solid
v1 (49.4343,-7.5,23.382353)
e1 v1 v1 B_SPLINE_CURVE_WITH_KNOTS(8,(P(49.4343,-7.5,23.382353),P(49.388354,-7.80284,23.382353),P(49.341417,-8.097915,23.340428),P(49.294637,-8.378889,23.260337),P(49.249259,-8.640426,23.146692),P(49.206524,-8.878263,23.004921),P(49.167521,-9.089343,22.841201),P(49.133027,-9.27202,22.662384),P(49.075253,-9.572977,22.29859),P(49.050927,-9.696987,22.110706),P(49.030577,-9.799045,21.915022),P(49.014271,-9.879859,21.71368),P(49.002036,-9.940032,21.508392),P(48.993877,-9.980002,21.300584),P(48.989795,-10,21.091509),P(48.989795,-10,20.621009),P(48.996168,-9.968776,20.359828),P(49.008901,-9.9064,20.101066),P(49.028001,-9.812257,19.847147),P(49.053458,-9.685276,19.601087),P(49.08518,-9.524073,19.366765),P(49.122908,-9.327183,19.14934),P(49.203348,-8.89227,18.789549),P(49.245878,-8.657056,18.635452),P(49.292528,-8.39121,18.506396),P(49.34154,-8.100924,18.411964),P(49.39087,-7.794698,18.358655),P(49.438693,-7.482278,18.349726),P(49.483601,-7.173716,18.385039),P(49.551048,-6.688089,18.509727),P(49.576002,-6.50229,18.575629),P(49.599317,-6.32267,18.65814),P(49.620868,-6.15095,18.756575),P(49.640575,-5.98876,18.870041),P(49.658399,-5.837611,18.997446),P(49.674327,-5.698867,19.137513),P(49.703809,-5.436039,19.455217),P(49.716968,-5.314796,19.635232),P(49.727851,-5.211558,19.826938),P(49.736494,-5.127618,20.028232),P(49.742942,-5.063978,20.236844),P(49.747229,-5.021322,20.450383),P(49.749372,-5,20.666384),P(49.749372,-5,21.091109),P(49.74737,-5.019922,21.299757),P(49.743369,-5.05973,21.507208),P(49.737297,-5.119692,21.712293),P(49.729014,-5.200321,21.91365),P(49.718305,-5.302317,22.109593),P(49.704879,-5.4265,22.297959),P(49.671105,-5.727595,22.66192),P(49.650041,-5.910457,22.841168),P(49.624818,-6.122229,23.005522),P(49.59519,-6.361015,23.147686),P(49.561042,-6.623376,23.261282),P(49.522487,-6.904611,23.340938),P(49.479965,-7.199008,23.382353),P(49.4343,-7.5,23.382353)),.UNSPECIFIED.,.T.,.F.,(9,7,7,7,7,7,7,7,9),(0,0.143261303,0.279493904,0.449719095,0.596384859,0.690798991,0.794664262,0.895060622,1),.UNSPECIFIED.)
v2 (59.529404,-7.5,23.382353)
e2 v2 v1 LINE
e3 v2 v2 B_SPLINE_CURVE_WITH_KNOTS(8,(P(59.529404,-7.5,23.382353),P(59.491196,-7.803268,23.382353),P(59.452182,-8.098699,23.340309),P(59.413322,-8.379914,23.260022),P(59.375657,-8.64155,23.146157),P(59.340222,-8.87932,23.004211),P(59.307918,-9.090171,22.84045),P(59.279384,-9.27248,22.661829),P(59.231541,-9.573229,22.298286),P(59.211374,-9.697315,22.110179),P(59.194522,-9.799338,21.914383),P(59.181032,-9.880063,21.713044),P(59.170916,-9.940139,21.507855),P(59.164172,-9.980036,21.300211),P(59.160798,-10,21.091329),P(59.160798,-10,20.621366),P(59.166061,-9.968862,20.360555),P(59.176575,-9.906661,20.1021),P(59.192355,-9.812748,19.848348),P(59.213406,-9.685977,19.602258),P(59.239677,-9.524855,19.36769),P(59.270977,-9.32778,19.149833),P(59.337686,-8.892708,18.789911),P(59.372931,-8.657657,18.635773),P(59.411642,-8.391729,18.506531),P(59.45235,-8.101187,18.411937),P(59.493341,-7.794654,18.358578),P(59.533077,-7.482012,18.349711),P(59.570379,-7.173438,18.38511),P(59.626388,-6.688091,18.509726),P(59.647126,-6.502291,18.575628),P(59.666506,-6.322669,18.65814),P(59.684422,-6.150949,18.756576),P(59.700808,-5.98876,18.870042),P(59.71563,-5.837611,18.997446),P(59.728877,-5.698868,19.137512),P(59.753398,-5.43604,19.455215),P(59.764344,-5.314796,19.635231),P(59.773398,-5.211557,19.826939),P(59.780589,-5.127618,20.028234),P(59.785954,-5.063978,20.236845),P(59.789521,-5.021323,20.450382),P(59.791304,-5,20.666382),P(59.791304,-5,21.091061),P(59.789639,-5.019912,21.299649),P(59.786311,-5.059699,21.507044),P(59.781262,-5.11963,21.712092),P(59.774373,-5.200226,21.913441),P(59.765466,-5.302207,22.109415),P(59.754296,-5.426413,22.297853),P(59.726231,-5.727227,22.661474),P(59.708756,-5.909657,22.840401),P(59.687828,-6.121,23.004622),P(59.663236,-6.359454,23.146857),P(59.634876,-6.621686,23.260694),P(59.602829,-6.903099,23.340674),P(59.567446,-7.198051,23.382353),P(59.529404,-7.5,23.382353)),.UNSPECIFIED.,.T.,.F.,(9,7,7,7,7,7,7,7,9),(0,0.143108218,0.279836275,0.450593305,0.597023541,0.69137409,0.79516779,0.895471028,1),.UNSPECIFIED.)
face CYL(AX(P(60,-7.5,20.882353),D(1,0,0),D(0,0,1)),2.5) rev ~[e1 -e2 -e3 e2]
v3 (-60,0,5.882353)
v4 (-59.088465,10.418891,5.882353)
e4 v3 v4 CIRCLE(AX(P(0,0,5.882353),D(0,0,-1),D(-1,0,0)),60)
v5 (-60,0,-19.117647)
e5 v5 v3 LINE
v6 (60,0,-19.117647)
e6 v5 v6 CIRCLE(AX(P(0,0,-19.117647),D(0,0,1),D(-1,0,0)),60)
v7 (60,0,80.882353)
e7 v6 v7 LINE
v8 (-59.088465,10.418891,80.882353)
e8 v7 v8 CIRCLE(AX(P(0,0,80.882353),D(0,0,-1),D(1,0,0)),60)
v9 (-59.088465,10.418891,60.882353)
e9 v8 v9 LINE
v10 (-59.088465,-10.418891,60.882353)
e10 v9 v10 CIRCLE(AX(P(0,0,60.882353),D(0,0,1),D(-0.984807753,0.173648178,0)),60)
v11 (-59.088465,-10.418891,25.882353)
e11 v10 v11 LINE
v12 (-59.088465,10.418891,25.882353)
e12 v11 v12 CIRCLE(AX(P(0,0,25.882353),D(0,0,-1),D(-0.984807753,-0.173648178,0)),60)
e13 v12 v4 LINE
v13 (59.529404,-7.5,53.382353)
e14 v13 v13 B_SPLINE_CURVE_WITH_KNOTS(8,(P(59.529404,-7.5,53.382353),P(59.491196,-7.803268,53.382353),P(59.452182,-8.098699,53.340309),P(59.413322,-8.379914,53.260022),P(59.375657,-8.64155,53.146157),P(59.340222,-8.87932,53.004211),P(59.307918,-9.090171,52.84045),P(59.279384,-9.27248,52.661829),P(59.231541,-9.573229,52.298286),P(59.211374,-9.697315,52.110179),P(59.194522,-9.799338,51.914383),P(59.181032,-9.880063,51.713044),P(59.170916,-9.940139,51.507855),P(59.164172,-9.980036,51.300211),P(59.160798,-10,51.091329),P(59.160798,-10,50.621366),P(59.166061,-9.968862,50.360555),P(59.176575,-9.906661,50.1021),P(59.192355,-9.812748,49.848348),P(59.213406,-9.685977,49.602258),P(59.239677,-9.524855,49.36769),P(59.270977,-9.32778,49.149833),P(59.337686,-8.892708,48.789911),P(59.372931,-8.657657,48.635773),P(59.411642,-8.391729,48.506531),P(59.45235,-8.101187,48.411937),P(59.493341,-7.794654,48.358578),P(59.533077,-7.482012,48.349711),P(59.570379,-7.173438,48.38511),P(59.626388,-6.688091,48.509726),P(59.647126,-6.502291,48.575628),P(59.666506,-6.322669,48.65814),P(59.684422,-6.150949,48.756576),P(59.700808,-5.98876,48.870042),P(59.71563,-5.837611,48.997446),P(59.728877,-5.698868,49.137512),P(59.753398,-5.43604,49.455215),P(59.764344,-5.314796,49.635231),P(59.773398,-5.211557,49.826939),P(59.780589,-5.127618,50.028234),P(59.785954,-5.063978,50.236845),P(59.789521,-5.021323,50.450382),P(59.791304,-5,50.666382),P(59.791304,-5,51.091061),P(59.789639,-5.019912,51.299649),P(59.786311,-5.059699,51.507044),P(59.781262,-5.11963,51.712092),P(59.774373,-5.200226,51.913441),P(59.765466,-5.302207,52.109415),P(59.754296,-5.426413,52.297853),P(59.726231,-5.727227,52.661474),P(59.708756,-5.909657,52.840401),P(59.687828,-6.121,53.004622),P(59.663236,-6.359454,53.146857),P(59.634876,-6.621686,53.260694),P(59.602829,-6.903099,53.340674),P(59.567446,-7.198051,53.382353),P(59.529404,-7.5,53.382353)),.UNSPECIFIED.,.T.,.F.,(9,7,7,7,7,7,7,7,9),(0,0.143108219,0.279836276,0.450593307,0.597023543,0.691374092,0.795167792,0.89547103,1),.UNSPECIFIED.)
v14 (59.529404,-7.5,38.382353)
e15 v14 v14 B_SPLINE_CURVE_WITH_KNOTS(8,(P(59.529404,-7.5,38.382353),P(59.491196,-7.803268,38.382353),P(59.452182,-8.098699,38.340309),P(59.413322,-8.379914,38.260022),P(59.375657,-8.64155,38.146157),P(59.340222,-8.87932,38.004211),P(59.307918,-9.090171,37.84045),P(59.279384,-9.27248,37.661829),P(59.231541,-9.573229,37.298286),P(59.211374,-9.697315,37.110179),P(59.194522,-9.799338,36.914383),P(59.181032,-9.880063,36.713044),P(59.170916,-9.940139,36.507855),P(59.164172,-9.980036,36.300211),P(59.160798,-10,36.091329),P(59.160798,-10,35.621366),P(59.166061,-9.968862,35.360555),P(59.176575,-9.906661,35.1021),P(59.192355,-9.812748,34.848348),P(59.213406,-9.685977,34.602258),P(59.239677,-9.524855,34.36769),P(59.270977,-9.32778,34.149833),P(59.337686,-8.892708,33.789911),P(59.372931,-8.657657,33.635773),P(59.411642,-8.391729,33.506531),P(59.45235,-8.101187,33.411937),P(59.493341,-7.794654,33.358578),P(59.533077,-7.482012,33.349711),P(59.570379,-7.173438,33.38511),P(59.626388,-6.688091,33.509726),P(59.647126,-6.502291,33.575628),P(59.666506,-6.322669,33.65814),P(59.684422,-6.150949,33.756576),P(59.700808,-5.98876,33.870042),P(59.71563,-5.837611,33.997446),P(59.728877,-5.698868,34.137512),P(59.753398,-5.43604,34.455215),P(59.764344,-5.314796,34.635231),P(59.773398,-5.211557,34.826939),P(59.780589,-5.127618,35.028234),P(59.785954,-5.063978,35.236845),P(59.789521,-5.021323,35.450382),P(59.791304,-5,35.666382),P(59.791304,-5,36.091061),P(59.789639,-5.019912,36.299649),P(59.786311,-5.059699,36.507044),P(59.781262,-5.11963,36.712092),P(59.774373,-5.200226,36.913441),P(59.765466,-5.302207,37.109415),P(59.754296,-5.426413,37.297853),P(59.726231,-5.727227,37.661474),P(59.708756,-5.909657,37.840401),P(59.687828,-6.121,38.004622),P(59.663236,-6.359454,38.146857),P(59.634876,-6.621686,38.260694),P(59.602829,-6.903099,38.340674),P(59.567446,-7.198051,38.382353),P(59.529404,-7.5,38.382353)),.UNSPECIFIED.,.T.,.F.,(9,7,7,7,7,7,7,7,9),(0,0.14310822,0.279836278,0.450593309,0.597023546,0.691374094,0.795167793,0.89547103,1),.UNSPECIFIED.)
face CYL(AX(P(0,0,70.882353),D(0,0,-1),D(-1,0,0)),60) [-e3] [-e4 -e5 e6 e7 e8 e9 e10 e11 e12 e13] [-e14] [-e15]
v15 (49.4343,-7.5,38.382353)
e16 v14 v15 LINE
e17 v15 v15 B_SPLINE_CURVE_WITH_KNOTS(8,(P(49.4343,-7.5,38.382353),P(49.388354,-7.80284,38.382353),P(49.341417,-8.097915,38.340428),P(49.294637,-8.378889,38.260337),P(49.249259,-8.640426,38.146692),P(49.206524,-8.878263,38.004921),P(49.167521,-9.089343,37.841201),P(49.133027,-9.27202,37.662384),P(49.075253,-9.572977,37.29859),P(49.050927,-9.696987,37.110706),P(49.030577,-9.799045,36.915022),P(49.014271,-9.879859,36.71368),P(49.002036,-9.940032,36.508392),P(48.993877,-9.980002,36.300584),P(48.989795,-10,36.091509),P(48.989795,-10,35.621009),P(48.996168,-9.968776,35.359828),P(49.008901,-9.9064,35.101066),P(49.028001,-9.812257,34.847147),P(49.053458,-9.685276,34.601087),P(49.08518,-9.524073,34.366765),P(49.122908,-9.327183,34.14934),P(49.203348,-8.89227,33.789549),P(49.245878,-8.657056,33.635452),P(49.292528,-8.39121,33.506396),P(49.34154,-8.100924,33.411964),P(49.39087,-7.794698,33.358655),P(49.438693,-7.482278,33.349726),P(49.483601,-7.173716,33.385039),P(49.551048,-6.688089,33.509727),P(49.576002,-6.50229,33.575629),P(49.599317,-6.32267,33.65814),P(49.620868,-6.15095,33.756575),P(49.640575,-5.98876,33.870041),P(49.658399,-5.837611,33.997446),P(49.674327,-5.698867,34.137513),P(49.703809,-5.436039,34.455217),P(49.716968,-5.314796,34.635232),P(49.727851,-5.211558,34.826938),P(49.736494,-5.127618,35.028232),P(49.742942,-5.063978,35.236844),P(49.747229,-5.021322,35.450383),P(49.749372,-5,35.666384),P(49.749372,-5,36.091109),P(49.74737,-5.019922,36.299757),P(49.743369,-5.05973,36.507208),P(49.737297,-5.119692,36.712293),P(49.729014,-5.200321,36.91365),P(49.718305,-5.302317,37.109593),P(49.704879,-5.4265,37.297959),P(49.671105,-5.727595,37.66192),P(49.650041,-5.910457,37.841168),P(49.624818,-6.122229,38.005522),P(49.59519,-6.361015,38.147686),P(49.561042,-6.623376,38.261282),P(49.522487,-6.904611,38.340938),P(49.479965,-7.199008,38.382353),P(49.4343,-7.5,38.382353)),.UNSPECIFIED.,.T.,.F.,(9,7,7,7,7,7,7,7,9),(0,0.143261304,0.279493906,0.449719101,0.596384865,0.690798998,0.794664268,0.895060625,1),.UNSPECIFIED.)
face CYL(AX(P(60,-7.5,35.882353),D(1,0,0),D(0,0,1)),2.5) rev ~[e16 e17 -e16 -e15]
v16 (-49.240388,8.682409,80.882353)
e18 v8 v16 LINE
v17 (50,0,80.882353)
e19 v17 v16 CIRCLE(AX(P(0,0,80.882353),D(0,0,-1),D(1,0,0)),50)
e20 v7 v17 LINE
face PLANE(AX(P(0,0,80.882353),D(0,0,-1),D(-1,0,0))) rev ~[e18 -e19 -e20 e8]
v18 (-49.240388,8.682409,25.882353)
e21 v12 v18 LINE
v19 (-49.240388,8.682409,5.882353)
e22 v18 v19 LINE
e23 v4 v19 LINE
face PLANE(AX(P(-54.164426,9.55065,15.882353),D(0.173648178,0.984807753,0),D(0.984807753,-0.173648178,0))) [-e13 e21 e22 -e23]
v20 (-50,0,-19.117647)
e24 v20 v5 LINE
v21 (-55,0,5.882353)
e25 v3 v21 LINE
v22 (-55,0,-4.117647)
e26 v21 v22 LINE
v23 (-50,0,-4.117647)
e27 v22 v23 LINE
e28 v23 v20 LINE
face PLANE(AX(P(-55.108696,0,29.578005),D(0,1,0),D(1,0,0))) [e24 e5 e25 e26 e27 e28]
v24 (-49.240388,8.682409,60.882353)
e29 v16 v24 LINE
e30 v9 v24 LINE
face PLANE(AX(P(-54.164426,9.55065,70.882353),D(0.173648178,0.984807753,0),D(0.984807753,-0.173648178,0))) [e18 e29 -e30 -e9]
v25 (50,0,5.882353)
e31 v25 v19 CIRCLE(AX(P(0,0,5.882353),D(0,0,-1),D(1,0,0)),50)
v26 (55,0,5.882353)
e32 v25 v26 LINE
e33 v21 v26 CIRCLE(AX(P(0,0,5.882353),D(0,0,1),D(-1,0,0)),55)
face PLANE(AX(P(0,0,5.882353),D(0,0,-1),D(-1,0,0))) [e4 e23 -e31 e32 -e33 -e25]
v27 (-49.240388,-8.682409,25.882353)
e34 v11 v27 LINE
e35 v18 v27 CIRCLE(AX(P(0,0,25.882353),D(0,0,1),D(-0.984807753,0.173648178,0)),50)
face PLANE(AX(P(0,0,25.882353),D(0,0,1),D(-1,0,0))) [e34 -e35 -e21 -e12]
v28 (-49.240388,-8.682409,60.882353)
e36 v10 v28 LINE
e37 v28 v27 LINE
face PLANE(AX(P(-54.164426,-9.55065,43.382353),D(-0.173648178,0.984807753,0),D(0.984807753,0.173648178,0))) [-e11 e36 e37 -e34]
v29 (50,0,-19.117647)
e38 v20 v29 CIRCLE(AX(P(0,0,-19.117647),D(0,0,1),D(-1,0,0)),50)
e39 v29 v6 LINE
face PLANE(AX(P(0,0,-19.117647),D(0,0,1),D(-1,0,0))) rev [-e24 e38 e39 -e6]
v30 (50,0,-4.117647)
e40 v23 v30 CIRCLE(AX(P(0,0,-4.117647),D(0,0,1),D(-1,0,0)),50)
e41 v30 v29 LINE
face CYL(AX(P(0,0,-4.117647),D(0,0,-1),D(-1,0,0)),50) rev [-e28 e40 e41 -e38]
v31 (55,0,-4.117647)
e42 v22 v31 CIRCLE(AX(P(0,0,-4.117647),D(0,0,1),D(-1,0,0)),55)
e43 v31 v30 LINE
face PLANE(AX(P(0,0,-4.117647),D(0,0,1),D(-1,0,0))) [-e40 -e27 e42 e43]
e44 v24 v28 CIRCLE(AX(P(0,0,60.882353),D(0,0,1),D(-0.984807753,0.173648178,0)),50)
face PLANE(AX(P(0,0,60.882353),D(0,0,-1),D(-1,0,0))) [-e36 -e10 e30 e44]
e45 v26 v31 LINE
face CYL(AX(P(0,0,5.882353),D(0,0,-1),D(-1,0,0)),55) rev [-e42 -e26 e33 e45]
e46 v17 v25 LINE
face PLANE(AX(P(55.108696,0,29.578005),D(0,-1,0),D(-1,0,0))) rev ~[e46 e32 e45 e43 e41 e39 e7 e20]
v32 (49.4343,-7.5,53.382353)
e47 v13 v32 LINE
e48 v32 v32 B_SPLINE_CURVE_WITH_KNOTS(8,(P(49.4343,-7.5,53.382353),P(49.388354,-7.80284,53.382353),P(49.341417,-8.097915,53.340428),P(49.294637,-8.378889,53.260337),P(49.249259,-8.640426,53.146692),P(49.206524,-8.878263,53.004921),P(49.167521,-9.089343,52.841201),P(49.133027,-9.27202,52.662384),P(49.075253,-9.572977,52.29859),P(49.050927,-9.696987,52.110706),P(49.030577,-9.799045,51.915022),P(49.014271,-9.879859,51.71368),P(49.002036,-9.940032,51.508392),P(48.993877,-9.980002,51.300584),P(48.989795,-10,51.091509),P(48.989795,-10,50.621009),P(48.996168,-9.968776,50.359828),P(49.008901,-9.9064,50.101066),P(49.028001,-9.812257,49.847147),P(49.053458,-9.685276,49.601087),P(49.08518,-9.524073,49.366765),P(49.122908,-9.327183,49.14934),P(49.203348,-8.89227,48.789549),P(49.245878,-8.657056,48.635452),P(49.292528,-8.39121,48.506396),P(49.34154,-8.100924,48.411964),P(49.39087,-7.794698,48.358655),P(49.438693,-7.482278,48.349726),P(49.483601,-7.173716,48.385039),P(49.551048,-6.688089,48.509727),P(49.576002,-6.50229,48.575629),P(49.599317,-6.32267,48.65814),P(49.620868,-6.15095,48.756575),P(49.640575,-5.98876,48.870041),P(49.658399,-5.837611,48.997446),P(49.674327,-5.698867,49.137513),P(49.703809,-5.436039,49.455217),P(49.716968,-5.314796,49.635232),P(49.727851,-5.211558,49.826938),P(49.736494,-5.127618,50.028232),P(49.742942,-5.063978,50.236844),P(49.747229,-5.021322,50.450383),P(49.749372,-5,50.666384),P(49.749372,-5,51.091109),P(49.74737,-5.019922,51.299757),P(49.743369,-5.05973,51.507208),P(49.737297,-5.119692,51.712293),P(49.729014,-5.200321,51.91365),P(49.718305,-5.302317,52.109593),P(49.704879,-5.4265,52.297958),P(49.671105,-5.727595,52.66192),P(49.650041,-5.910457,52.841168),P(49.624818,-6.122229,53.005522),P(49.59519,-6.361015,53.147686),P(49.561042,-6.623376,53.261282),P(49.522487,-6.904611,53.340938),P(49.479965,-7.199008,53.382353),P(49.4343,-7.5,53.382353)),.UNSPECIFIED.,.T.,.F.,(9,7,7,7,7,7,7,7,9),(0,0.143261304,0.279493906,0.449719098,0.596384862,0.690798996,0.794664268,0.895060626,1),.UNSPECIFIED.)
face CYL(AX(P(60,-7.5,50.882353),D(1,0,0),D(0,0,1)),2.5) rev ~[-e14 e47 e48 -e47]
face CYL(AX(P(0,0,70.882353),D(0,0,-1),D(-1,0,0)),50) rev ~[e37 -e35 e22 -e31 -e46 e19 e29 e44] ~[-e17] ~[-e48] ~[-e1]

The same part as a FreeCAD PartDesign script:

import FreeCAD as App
import Part
import Sketcher

V = App.Vector
Q = App.Units.Quantity

doc = App.newDocument("Part")
body = doc.addObject("PartDesign::Body", "Body")

# Sketch on XZ plane
sketch1 = body.newObject("Sketcher::SketchObject", "Sketch")
sketch1.AttachmentSupport = (doc.getObject("XZ_Plane"), [""])
sketch1.MapMode = "FlatFace"
sketch1.addGeometry(Part.LineSegment(V(-60, -19, 0), V(-60, 81, 0)), False)
sketch1.addGeometry(Part.LineSegment(V(-60, 81, 0), V(-50, 81, 0)), False)
sketch1.addGeometry(Part.LineSegment(V(-50, 81, 0), V(-50, 6, 0)), False)
sketch1.addGeometry(Part.LineSegment(V(-50, 6, 0), V(-55, 6, 0)), False)
sketch1.addGeometry(Part.LineSegment(V(-55, 6, 0), V(-55, -4, 0)), False)
sketch1.addGeometry(Part.LineSegment(V(-55, -4, 0), V(-50, -4, 0)), False)
sketch1.addGeometry(Part.LineSegment(V(-50, -4, 0), V(-50, -19, 0)), False)
sketch1.addGeometry(Part.LineSegment(V(-50, -19, 0), V(-60, -19, 0)), False)
sketch1.addConstraint(Sketcher.Constraint("Coincident", 0, 2, 1, 1))
sketch1.addConstraint(Sketcher.Constraint("Coincident", 1, 2, 2, 1))
sketch1.addConstraint(Sketcher.Constraint("Coincident", 2, 2, 3, 1))
sketch1.addConstraint(Sketcher.Constraint("Coincident", 3, 2, 4, 1))
sketch1.addConstraint(Sketcher.Constraint("Coincident", 4, 2, 5, 1))
sketch1.addConstraint(Sketcher.Constraint("Coincident", 5, 2, 6, 1))
sketch1.addConstraint(Sketcher.Constraint("Coincident", 6, 2, 7, 1))
sketch1.addConstraint(Sketcher.Constraint("Coincident", 7, 2, 0, 1))
sketch1.addConstraint(Sketcher.Constraint("Vertical", 0))
sketch1.addConstraint(Sketcher.Constraint("Horizontal", 1))
sketch1.addConstraint(Sketcher.Constraint("Vertical", 2))
sketch1.addConstraint(Sketcher.Constraint("Horizontal", 3))
sketch1.addConstraint(Sketcher.Constraint("Vertical", 4))
sketch1.addConstraint(Sketcher.Constraint("Horizontal", 5))
sketch1.addConstraint(Sketcher.Constraint("Vertical", 6))
sketch1.addConstraint(Sketcher.Constraint("Horizontal", 7))
sketch1.addConstraint(Sketcher.Constraint("Vertical", 2, 2, 5, 2))
sketch1.addConstraint(Sketcher.Constraint("Equal", 7, 4))
sketch1.addConstraint(Sketcher.Constraint("DistanceX", 1, 1, 1, 2, Q("10 mm")))
sketch1.addConstraint(Sketcher.Constraint("DistanceX", 3, 2, 3, 1, Q("5 mm")))
sketch1.addConstraint(Sketcher.Constraint("DistanceY", 0, 1, 0, 2, Q("100 mm")))
sketch1.addConstraint(Sketcher.Constraint("DistanceY", 2, 2, 2, 1, Q("75 mm")))
sketch1.addConstraint(Sketcher.Constraint("DistanceX", 0, 2, -1, 1, Q("60 mm")))
sketch1.addConstraint(Sketcher.Constraint("DistanceY", -1, 1, 0, 2, Q("80.882353 mm")))
revolution = body.newObject("PartDesign::Revolution", "Revolution")
revolution.Profile = sketch1
revolution.ReferenceAxis = (sketch1, ["V_Axis"])
revolution.Angle = 180

# Sketch on XZ plane
sketch2 = body.newObject("Sketcher::SketchObject", "Sketch001")
sketch2.AttachmentSupport = (doc.getObject("XZ_Plane"), [""])
sketch2.MapMode = "FlatFace"
sketch2.addGeometry(Part.LineSegment(V(-60, 26, 0), V(-60, 61, 0)), False)
sketch2.addGeometry(Part.LineSegment(V(-60, 61, 0), V(-50, 61, 0)), False)
sketch2.addGeometry(Part.LineSegment(V(-50, 61, 0), V(-50, 26, 0)), False)
sketch2.addGeometry(Part.LineSegment(V(-50, 26, 0), V(-60, 26, 0)), False)
sketch2.addConstraint(Sketcher.Constraint("Coincident", 0, 2, 1, 1))
sketch2.addConstraint(Sketcher.Constraint("Coincident", 1, 2, 2, 1))
sketch2.addConstraint(Sketcher.Constraint("Coincident", 2, 2, 3, 1))
sketch2.addConstraint(Sketcher.Constraint("Coincident", 3, 2, 0, 1))
sketch2.addConstraint(Sketcher.Constraint("Vertical", 0))
sketch2.addConstraint(Sketcher.Constraint("Horizontal", 1))
sketch2.addConstraint(Sketcher.Constraint("Vertical", 2))
sketch2.addConstraint(Sketcher.Constraint("Horizontal", 3))
sketch2.addConstraint(Sketcher.Constraint("DistanceX", 1, 1, 1, 2, Q("10 mm")))
sketch2.addConstraint(Sketcher.Constraint("DistanceY", 0, 1, 0, 2, Q("35 mm")))
sketch2.addConstraint(Sketcher.Constraint("DistanceX", 0, 2, -1, 1, Q("60 mm")))
sketch2.addConstraint(Sketcher.Constraint("DistanceY", -1, 1, 0, 2, Q("60.882353 mm")))
groove = body.newObject("PartDesign::Groove", "Groove")
groove.Profile = sketch2
groove.ReferenceAxis = (sketch2, ["V_Axis"])
groove.Angle = 10

# Sketch on YZ plane
sketch3 = body.newObject("Sketcher::SketchObject", "Sketch002")
sketch3.AttachmentSupport = (doc.getObject("YZ_Plane"), [""])
sketch3.MapMode = "FlatFace"
sketch3.AttachmentOffset = App.Placement(V(0, 0, 60), App.Rotation())
sketch3.addGeometry(Part.Circle(V(-7.5, 35.9, 0), V(0, 0, 1), 2.5), False)
sketch3.addGeometry(Part.Circle(V(-7.5, 50.9, 0), V(0, 0, 1), 2.5), False)
sketch3.addGeometry(Part.Circle(V(-7.5, 20.9, 0), V(0, 0, 1), 2.5), False)
sketch3.addConstraint(Sketcher.Constraint("Equal", 0, 1))
sketch3.addConstraint(Sketcher.Constraint("Equal", 1, 2))
sketch3.addConstraint(Sketcher.Constraint("Vertical", 0, 3, 1, 3))
sketch3.addConstraint(Sketcher.Constraint("Vertical", 1, 3, 2, 3))
sketch3.addConstraint(Sketcher.Constraint("Diameter", 0, Q("5 mm")))
sketch3.addConstraint(Sketcher.Constraint("DistanceY", 0, 3, 1, 3, Q("15 mm")))
sketch3.addConstraint(Sketcher.Constraint("DistanceY", 2, 3, 0, 3, Q("15 mm")))
sketch3.addConstraint(Sketcher.Constraint("DistanceX", 0, 3, -1, 1, Q("7.5 mm")))
sketch3.addConstraint(Sketcher.Constraint("DistanceY", -1, 1, 0, 3, Q("35.882353 mm")))
pocket1 = body.newObject("PartDesign::Pocket", "Pocket")
pocket1.Profile = sketch3
pocket1.Length = 20

# Sketch on XZ plane
sketch4 = body.newObject("Sketcher::SketchObject", "Sketch003")
sketch4.AttachmentSupport = (doc.getObject("XZ_Plane"), [""])
sketch4.MapMode = "FlatFace"
sketch4.addGeometry(Part.LineSegment(V(-60, 61, 0), V(-60, 81, 0)), False)
sketch4.addGeometry(Part.LineSegment(V(-60, 81, 0), V(-50, 81, 0)), False)
sketch4.addGeometry(Part.LineSegment(V(-50, 81, 0), V(-50, 61, 0)), False)
sketch4.addGeometry(Part.LineSegment(V(-50, 61, 0), V(-60, 61, 0)), False)
sketch4.addGeometry(Part.LineSegment(V(-60, 6, 0), V(-60, 26, 0)), False)
sketch4.addGeometry(Part.LineSegment(V(-60, 26, 0), V(-50, 26, 0)), False)
sketch4.addGeometry(Part.LineSegment(V(-50, 26, 0), V(-50, 6, 0)), False)
sketch4.addGeometry(Part.LineSegment(V(-50, 6, 0), V(-60, 6, 0)), False)
sketch4.addConstraint(Sketcher.Constraint("Coincident", 0, 2, 1, 1))
sketch4.addConstraint(Sketcher.Constraint("Coincident", 1, 2, 2, 1))
sketch4.addConstraint(Sketcher.Constraint("Coincident", 2, 2, 3, 1))
sketch4.addConstraint(Sketcher.Constraint("Coincident", 3, 2, 0, 1))
sketch4.addConstraint(Sketcher.Constraint("Coincident", 4, 2, 5, 1))
sketch4.addConstraint(Sketcher.Constraint("Coincident", 5, 2, 6, 1))
sketch4.addConstraint(Sketcher.Constraint("Coincident", 6, 2, 7, 1))
sketch4.addConstraint(Sketcher.Constraint("Coincident", 7, 2, 4, 1))
sketch4.addConstraint(Sketcher.Constraint("Vertical", 0))
sketch4.addConstraint(Sketcher.Constraint("Horizontal", 1))
sketch4.addConstraint(Sketcher.Constraint("Vertical", 2))
sketch4.addConstraint(Sketcher.Constraint("Horizontal", 3))
sketch4.addConstraint(Sketcher.Constraint("Vertical", 4))
sketch4.addConstraint(Sketcher.Constraint("Horizontal", 5))
sketch4.addConstraint(Sketcher.Constraint("Vertical", 6))
sketch4.addConstraint(Sketcher.Constraint("Horizontal", 7))
sketch4.addConstraint(Sketcher.Constraint("Vertical", 3, 2, 4, 2))
sketch4.addConstraint(Sketcher.Constraint("Vertical", 2, 2, 5, 2))
sketch4.addConstraint(Sketcher.Constraint("Equal", 2, 4))
sketch4.addConstraint(Sketcher.Constraint("DistanceX", 1, 1, 1, 2, Q("10 mm")))
sketch4.addConstraint(Sketcher.Constraint("DistanceY", 0, 1, 0, 2, Q("20 mm")))
sketch4.addConstraint(Sketcher.Constraint("DistanceX", 0, 2, -1, 1, Q("60 mm")))
sketch4.addConstraint(Sketcher.Constraint("DistanceY", 4, 2, 3, 2, Q("35 mm")))
sketch4.addConstraint(Sketcher.Constraint("DistanceY", -1, 1, 0, 2, Q("80.882353 mm")))
revolution2 = body.newObject("PartDesign::Revolution", "Revolution001")
revolution2.Profile = sketch4
revolution2.ReferenceAxis = (sketch4, ["V_Axis"])
revolution2.Angle = 10
revolution2.Reversed = True

doc.recompute()
